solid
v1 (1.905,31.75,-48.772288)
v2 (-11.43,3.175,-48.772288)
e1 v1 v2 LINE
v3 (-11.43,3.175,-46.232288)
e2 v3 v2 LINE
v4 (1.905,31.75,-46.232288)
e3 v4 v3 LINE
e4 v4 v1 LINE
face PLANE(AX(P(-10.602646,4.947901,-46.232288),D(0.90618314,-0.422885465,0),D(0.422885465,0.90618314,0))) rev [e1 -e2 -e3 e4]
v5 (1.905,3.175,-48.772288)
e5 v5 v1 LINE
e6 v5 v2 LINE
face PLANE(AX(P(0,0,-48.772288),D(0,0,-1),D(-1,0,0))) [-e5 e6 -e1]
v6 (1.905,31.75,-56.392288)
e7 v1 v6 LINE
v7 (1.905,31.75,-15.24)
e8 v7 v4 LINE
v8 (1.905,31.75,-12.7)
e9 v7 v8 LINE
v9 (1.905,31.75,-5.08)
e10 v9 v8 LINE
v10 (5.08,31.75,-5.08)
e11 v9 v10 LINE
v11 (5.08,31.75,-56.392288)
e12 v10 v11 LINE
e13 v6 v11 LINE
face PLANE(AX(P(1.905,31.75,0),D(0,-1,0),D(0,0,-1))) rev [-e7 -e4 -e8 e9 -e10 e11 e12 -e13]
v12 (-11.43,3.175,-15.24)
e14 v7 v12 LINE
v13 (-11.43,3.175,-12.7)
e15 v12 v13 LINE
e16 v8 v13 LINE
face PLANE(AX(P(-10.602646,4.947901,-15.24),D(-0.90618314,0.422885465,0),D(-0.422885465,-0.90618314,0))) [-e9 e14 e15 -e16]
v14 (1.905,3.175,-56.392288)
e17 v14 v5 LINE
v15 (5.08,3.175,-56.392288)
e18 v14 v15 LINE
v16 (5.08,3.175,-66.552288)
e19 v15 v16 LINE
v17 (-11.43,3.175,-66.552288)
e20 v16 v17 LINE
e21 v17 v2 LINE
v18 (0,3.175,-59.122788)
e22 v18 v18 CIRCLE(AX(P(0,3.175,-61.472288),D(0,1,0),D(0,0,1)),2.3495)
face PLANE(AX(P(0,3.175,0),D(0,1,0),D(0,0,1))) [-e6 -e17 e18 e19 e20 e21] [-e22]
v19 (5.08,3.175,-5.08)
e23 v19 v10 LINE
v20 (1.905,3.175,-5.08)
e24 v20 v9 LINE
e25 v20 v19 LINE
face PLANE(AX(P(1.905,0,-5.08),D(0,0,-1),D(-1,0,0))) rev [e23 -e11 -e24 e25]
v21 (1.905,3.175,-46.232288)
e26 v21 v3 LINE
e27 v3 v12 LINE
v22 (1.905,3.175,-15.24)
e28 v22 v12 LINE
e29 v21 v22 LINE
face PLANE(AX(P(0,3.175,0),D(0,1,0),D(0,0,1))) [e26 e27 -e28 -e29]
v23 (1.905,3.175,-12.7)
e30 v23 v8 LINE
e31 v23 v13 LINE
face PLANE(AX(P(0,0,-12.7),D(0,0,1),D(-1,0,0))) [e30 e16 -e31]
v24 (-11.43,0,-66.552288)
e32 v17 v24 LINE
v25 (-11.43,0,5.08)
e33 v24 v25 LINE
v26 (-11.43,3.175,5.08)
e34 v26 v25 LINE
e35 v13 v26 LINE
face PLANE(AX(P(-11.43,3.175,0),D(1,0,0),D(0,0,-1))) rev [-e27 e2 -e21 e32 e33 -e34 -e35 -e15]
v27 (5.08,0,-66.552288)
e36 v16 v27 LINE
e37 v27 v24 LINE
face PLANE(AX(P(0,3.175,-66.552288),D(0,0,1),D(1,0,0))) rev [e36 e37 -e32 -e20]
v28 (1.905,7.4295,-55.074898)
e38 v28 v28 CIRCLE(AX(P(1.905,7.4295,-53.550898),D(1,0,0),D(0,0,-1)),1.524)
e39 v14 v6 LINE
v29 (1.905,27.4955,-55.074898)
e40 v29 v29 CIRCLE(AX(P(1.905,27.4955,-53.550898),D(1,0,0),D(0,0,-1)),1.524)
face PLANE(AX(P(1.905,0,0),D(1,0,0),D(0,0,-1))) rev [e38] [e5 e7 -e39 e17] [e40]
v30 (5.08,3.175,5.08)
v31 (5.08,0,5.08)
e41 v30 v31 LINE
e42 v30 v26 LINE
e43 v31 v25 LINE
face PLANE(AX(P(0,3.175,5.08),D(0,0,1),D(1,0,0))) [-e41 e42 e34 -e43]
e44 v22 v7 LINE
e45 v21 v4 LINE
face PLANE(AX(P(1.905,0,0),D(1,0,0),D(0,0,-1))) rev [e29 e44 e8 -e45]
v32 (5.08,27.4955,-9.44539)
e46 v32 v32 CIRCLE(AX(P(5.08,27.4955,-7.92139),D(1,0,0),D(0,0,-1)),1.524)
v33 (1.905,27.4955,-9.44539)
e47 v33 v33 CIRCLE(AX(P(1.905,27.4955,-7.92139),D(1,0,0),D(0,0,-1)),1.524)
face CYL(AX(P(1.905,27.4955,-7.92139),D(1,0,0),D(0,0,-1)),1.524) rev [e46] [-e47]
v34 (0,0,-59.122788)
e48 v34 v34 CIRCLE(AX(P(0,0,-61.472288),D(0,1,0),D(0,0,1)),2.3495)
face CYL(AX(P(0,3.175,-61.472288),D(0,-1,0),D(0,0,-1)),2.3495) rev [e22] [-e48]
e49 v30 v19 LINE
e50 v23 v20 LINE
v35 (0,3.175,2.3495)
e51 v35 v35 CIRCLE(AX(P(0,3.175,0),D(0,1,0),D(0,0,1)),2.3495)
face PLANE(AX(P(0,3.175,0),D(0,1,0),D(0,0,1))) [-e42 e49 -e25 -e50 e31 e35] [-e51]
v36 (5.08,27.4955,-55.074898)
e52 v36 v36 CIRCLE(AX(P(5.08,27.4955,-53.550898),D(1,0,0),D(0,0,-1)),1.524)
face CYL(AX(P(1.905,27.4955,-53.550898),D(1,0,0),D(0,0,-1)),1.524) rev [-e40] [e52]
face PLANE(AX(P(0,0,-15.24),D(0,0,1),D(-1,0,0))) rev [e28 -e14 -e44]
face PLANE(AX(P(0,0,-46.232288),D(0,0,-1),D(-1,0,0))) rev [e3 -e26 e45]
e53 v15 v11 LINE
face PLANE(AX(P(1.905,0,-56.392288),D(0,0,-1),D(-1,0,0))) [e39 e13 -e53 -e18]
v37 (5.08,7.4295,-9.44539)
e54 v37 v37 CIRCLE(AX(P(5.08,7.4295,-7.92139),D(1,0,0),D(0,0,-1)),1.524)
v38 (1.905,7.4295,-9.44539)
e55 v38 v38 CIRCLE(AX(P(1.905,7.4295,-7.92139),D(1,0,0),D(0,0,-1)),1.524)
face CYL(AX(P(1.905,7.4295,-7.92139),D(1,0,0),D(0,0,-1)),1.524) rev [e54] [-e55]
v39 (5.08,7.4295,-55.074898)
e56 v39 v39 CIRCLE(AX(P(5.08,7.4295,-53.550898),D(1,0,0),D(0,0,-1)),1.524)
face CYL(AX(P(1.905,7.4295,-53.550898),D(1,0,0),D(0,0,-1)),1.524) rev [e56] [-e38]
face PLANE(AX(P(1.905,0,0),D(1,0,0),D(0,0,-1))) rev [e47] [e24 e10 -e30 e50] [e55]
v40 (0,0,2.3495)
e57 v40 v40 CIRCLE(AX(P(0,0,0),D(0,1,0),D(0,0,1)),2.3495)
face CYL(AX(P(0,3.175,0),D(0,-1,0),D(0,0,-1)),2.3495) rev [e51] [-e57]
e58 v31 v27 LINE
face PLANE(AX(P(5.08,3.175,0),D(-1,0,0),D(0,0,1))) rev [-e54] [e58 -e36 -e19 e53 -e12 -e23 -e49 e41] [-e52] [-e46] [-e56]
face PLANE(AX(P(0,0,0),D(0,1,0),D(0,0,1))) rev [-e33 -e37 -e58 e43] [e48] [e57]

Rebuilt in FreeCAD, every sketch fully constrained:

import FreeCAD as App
import Part
import Sketcher
Q = App.Units.Quantity

doc = App.newDocument("Part")
body = doc.addObject("PartDesign::Body", "Body")

# Sketch on XZ plane
sketch1 = body.newObject("Sketcher::SketchObject", "Sketch")
sketch1.AttachmentSupport = (doc.getObject("XZ_Plane"), [""])
sketch1.MapMode = "FlatFace"
sketch1.addGeometry([
    Part.LineSegment(App.Vector(-11.43, -66.552288, 0), App.Vector(-11.43, 5.08, 0)),  # 0
    Part.LineSegment(App.Vector(-11.43, 5.08, 0), App.Vector(5.08, 5.08, 0)),  # 1
    Part.LineSegment(App.Vector(5.08, 5.08, 0), App.Vector(5.08, -66.552288, 0)),  # 2
    Part.LineSegment(App.Vector(5.08, -66.552288, 0), App.Vector(-11.43, -66.552288, 0)),  # 3
    Part.Circle(App.Vector(0, 0, 0), App.Vector(0, 0, 1), 2.3495),  # 4
    Part.Circle(App.Vector(0, -61.472288, 0), App.Vector(0, 0, 1), 2.3495),  # 5
], False)
sketch1.addConstraint([
    Sketcher.Constraint("Coincident", 0, 2, 1, 1),
    Sketcher.Constraint("Coincident", 1, 2, 2, 1),
    Sketcher.Constraint("Coincident", 2, 2, 3, 1),
    Sketcher.Constraint("Coincident", 3, 2, 0, 1),
    Sketcher.Constraint("Vertical", 0),
    Sketcher.Constraint("Horizontal", 1),
    Sketcher.Constraint("Vertical", 2),
    Sketcher.Constraint("Horizontal", 3),
    Sketcher.Constraint("Coincident", 4, 3, -1, 1),
    Sketcher.Constraint("Equal", 4, 5),
    Sketcher.Constraint("PointOnObject", 5, 3, -2),
    Sketcher.Constraint("Diameter", 4, Q("0.185 in")),
    Sketcher.Constraint("DistanceX", 1, 1, 1, 2, Q("0.65 in")),
    Sketcher.Constraint("DistanceY", -1, 1, 0, 2, Q("0.2 in")),
    Sketcher.Constraint("DistanceX", -1, 1, 1, 2, Q("0.2 in")),
    Sketcher.Constraint("DistanceY", 2, 2, 5, 3, Q("0.2 in")),
    Sketcher.Constraint("DistanceY", 0, 1, 0, 2, Q("71.632288 mm")),
])
pad1 = body.newObject("PartDesign::Pad", "Pad")
pad1.Profile = sketch1
pad1.Length = Q("0.125 in")
pad1.Reversed = True

# Sketch on YZ plane
sketch2 = body.newObject("Sketcher::SketchObject", "Sketch001")
sketch2.AttachmentSupport = (doc.getObject("YZ_Plane"), [""])
sketch2.MapMode = "FlatFace"
sketch2.AttachmentOffset = App.Placement(App.Vector(0, 0, 0.2 * 25.4), App.Rotation())
sketch2.addGeometry([
    Part.LineSegment(App.Vector(31.75, -5.08, 0), App.Vector(3.175, -5.08, 0)),  # 0
    Part.LineSegment(App.Vector(3.175, -5.08, 0), App.Vector(3.175, -56.392288, 0)),  # 1
    Part.LineSegment(App.Vector(3.175, -56.392288, 0), App.Vector(31.75, -56.392288, 0)),  # 2
    Part.LineSegment(App.Vector(31.75, -56.392288, 0), App.Vector(31.75, -5.08, 0)),  # 3
    Part.Circle(App.Vector(7.4295, -7.92139, 0), App.Vector(0, 0, 1), 1.524),  # 4
    Part.Circle(App.Vector(7.4295, -53.550898, 0), App.Vector(0, 0, 1), 1.524),  # 5
    Part.Circle(App.Vector(27.4955, -7.92139, 0), App.Vector(0, 0, 1), 1.524),  # 6
    Part.Circle(App.Vector(27.4955, -53.550898, 0), App.Vector(0, 0, 1), 1.524),  # 7
], False)
sketch2.addConstraint([
    Sketcher.Constraint("Coincident", 0, 2, 1, 1),
    Sketcher.Constraint("Coincident", 1, 2, 2, 1),
    Sketcher.Constraint("Coincident", 2, 2, 3, 1),
    Sketcher.Constraint("Coincident", 3, 2, 0, 1),
    Sketcher.Constraint("Horizontal", 0),
    Sketcher.Constraint("Vertical", 1),
    Sketcher.Constraint("Horizontal", 2),
    Sketcher.Constraint("Vertical", 3),
    Sketcher.Constraint("Equal", 4, 5),
    Sketcher.Constraint("Equal", 5, 6),
    Sketcher.Constraint("Equal", 6, 7),
    Sketcher.Constraint("Horizontal", 4, 3, 6, 3),
    Sketcher.Constraint("Horizontal", 5, 3, 7, 3),
    Sketcher.Constraint("Vertical", 4, 3, 5, 3),
    Sketcher.Constraint("Vertical", 6, 3, 7, 3),
    Sketcher.Constraint("Diameter", 4, Q("0.12 in")),
    Sketcher.Constraint("DistanceY", 0, 2, -1, 1, Q("0.2 in")),
    Sketcher.Constraint("DistanceX", 0, 2, 0, 1, Q("1.125 in")),
    Sketcher.Constraint("DistanceX", -1, 1, 2, 2, Q("1.25 in")),
    Sketcher.Constraint("DistanceX", 4, 3, 6, 3, Q("0.79 in")),
    Sketcher.Constraint("DistanceX", -1, 1, 4, 3, Q("0.2925 in")),
    Sketcher.Constraint("DistanceY", 1, 2, 1, 1, Q("51.312288 mm")),
    Sketcher.Constraint("DistanceY", 4, 3, -1, 1, Q("7.92139 mm")),
    Sketcher.Constraint("DistanceY", 1, 2, 5, 3, Q("2.84139 mm")),
])
pad2 = body.newObject("PartDesign::Pad", "Pad001")
pad2.Profile = sketch2
pad2.Length = Q("0.125 in")
pad2.Reversed = True

# Sketch on XY plane
sketch3 = body.newObject("Sketcher::SketchObject", "Sketch002")
sketch3.AttachmentSupport = (doc.getObject("XY_Plane"), [""])
sketch3.MapMode = "FlatFace"
sketch3.AttachmentOffset = App.Placement(App.Vector(0, 0, -48.772288), App.Rotation())
sketch3.addGeometry([
    Part.LineSegment(App.Vector(1.905, 31.75, 0), App.Vector(1.905, 3.175, 0)),
    Part.LineSegment(App.Vector(1.905, 3.175, 0), App.Vector(-11.43, 3.175, 0)),
    Part.LineSegment(App.Vector(-11.43, 3.175, 0), App.Vector(1.905, 31.75, 0)),
], False)
sketch3.addConstraint([
    Sketcher.Constraint("Coincident", 0, 2, 1, 1),
    Sketcher.Constraint("Coincident", 1, 2, 2, 1),
    Sketcher.Constraint("Coincident", 2, 2, 0, 1),
    Sketcher.Constraint("Vertical", 0),
    Sketcher.Constraint("Horizontal", 1),
    Sketcher.Constraint("DistanceX", 1, 2, 1, 1, Q("0.525 in")),
    Sketcher.Constraint("DistanceY", 0, 2, 0, 1, Q("1.125 in")),
    Sketcher.Constraint("DistanceX", 1, 2, -1, 1, Q("0.45 in")),
    Sketcher.Constraint("DistanceY", -1, 1, 2, 2, Q("1.25 in")),
])
pad3 = body.newObject("PartDesign::Pad", "Pad002")
pad3.Profile = sketch3
pad3.Length = Q("0.1 in")
doc.recompute()

datumplane = body.newObject("PartDesign::Plane", "DatumPlane")
datumplane.AttachmentSupport = (doc.getObject("XY_Plane"), [""])
datumplane.MapMode = "FlatFace"
datumplane.AttachmentOffset = App.Placement(App.Vector(0, 0, -30.736144), App.Rotation())
mirrored = body.newObject("PartDesign::Mirrored", "Mirrored")
mirrored.Originals = [pad3]
mirrored.MirrorPlane = (datumplane, [""])
body.Tip = mirrored

doc.recompute()
